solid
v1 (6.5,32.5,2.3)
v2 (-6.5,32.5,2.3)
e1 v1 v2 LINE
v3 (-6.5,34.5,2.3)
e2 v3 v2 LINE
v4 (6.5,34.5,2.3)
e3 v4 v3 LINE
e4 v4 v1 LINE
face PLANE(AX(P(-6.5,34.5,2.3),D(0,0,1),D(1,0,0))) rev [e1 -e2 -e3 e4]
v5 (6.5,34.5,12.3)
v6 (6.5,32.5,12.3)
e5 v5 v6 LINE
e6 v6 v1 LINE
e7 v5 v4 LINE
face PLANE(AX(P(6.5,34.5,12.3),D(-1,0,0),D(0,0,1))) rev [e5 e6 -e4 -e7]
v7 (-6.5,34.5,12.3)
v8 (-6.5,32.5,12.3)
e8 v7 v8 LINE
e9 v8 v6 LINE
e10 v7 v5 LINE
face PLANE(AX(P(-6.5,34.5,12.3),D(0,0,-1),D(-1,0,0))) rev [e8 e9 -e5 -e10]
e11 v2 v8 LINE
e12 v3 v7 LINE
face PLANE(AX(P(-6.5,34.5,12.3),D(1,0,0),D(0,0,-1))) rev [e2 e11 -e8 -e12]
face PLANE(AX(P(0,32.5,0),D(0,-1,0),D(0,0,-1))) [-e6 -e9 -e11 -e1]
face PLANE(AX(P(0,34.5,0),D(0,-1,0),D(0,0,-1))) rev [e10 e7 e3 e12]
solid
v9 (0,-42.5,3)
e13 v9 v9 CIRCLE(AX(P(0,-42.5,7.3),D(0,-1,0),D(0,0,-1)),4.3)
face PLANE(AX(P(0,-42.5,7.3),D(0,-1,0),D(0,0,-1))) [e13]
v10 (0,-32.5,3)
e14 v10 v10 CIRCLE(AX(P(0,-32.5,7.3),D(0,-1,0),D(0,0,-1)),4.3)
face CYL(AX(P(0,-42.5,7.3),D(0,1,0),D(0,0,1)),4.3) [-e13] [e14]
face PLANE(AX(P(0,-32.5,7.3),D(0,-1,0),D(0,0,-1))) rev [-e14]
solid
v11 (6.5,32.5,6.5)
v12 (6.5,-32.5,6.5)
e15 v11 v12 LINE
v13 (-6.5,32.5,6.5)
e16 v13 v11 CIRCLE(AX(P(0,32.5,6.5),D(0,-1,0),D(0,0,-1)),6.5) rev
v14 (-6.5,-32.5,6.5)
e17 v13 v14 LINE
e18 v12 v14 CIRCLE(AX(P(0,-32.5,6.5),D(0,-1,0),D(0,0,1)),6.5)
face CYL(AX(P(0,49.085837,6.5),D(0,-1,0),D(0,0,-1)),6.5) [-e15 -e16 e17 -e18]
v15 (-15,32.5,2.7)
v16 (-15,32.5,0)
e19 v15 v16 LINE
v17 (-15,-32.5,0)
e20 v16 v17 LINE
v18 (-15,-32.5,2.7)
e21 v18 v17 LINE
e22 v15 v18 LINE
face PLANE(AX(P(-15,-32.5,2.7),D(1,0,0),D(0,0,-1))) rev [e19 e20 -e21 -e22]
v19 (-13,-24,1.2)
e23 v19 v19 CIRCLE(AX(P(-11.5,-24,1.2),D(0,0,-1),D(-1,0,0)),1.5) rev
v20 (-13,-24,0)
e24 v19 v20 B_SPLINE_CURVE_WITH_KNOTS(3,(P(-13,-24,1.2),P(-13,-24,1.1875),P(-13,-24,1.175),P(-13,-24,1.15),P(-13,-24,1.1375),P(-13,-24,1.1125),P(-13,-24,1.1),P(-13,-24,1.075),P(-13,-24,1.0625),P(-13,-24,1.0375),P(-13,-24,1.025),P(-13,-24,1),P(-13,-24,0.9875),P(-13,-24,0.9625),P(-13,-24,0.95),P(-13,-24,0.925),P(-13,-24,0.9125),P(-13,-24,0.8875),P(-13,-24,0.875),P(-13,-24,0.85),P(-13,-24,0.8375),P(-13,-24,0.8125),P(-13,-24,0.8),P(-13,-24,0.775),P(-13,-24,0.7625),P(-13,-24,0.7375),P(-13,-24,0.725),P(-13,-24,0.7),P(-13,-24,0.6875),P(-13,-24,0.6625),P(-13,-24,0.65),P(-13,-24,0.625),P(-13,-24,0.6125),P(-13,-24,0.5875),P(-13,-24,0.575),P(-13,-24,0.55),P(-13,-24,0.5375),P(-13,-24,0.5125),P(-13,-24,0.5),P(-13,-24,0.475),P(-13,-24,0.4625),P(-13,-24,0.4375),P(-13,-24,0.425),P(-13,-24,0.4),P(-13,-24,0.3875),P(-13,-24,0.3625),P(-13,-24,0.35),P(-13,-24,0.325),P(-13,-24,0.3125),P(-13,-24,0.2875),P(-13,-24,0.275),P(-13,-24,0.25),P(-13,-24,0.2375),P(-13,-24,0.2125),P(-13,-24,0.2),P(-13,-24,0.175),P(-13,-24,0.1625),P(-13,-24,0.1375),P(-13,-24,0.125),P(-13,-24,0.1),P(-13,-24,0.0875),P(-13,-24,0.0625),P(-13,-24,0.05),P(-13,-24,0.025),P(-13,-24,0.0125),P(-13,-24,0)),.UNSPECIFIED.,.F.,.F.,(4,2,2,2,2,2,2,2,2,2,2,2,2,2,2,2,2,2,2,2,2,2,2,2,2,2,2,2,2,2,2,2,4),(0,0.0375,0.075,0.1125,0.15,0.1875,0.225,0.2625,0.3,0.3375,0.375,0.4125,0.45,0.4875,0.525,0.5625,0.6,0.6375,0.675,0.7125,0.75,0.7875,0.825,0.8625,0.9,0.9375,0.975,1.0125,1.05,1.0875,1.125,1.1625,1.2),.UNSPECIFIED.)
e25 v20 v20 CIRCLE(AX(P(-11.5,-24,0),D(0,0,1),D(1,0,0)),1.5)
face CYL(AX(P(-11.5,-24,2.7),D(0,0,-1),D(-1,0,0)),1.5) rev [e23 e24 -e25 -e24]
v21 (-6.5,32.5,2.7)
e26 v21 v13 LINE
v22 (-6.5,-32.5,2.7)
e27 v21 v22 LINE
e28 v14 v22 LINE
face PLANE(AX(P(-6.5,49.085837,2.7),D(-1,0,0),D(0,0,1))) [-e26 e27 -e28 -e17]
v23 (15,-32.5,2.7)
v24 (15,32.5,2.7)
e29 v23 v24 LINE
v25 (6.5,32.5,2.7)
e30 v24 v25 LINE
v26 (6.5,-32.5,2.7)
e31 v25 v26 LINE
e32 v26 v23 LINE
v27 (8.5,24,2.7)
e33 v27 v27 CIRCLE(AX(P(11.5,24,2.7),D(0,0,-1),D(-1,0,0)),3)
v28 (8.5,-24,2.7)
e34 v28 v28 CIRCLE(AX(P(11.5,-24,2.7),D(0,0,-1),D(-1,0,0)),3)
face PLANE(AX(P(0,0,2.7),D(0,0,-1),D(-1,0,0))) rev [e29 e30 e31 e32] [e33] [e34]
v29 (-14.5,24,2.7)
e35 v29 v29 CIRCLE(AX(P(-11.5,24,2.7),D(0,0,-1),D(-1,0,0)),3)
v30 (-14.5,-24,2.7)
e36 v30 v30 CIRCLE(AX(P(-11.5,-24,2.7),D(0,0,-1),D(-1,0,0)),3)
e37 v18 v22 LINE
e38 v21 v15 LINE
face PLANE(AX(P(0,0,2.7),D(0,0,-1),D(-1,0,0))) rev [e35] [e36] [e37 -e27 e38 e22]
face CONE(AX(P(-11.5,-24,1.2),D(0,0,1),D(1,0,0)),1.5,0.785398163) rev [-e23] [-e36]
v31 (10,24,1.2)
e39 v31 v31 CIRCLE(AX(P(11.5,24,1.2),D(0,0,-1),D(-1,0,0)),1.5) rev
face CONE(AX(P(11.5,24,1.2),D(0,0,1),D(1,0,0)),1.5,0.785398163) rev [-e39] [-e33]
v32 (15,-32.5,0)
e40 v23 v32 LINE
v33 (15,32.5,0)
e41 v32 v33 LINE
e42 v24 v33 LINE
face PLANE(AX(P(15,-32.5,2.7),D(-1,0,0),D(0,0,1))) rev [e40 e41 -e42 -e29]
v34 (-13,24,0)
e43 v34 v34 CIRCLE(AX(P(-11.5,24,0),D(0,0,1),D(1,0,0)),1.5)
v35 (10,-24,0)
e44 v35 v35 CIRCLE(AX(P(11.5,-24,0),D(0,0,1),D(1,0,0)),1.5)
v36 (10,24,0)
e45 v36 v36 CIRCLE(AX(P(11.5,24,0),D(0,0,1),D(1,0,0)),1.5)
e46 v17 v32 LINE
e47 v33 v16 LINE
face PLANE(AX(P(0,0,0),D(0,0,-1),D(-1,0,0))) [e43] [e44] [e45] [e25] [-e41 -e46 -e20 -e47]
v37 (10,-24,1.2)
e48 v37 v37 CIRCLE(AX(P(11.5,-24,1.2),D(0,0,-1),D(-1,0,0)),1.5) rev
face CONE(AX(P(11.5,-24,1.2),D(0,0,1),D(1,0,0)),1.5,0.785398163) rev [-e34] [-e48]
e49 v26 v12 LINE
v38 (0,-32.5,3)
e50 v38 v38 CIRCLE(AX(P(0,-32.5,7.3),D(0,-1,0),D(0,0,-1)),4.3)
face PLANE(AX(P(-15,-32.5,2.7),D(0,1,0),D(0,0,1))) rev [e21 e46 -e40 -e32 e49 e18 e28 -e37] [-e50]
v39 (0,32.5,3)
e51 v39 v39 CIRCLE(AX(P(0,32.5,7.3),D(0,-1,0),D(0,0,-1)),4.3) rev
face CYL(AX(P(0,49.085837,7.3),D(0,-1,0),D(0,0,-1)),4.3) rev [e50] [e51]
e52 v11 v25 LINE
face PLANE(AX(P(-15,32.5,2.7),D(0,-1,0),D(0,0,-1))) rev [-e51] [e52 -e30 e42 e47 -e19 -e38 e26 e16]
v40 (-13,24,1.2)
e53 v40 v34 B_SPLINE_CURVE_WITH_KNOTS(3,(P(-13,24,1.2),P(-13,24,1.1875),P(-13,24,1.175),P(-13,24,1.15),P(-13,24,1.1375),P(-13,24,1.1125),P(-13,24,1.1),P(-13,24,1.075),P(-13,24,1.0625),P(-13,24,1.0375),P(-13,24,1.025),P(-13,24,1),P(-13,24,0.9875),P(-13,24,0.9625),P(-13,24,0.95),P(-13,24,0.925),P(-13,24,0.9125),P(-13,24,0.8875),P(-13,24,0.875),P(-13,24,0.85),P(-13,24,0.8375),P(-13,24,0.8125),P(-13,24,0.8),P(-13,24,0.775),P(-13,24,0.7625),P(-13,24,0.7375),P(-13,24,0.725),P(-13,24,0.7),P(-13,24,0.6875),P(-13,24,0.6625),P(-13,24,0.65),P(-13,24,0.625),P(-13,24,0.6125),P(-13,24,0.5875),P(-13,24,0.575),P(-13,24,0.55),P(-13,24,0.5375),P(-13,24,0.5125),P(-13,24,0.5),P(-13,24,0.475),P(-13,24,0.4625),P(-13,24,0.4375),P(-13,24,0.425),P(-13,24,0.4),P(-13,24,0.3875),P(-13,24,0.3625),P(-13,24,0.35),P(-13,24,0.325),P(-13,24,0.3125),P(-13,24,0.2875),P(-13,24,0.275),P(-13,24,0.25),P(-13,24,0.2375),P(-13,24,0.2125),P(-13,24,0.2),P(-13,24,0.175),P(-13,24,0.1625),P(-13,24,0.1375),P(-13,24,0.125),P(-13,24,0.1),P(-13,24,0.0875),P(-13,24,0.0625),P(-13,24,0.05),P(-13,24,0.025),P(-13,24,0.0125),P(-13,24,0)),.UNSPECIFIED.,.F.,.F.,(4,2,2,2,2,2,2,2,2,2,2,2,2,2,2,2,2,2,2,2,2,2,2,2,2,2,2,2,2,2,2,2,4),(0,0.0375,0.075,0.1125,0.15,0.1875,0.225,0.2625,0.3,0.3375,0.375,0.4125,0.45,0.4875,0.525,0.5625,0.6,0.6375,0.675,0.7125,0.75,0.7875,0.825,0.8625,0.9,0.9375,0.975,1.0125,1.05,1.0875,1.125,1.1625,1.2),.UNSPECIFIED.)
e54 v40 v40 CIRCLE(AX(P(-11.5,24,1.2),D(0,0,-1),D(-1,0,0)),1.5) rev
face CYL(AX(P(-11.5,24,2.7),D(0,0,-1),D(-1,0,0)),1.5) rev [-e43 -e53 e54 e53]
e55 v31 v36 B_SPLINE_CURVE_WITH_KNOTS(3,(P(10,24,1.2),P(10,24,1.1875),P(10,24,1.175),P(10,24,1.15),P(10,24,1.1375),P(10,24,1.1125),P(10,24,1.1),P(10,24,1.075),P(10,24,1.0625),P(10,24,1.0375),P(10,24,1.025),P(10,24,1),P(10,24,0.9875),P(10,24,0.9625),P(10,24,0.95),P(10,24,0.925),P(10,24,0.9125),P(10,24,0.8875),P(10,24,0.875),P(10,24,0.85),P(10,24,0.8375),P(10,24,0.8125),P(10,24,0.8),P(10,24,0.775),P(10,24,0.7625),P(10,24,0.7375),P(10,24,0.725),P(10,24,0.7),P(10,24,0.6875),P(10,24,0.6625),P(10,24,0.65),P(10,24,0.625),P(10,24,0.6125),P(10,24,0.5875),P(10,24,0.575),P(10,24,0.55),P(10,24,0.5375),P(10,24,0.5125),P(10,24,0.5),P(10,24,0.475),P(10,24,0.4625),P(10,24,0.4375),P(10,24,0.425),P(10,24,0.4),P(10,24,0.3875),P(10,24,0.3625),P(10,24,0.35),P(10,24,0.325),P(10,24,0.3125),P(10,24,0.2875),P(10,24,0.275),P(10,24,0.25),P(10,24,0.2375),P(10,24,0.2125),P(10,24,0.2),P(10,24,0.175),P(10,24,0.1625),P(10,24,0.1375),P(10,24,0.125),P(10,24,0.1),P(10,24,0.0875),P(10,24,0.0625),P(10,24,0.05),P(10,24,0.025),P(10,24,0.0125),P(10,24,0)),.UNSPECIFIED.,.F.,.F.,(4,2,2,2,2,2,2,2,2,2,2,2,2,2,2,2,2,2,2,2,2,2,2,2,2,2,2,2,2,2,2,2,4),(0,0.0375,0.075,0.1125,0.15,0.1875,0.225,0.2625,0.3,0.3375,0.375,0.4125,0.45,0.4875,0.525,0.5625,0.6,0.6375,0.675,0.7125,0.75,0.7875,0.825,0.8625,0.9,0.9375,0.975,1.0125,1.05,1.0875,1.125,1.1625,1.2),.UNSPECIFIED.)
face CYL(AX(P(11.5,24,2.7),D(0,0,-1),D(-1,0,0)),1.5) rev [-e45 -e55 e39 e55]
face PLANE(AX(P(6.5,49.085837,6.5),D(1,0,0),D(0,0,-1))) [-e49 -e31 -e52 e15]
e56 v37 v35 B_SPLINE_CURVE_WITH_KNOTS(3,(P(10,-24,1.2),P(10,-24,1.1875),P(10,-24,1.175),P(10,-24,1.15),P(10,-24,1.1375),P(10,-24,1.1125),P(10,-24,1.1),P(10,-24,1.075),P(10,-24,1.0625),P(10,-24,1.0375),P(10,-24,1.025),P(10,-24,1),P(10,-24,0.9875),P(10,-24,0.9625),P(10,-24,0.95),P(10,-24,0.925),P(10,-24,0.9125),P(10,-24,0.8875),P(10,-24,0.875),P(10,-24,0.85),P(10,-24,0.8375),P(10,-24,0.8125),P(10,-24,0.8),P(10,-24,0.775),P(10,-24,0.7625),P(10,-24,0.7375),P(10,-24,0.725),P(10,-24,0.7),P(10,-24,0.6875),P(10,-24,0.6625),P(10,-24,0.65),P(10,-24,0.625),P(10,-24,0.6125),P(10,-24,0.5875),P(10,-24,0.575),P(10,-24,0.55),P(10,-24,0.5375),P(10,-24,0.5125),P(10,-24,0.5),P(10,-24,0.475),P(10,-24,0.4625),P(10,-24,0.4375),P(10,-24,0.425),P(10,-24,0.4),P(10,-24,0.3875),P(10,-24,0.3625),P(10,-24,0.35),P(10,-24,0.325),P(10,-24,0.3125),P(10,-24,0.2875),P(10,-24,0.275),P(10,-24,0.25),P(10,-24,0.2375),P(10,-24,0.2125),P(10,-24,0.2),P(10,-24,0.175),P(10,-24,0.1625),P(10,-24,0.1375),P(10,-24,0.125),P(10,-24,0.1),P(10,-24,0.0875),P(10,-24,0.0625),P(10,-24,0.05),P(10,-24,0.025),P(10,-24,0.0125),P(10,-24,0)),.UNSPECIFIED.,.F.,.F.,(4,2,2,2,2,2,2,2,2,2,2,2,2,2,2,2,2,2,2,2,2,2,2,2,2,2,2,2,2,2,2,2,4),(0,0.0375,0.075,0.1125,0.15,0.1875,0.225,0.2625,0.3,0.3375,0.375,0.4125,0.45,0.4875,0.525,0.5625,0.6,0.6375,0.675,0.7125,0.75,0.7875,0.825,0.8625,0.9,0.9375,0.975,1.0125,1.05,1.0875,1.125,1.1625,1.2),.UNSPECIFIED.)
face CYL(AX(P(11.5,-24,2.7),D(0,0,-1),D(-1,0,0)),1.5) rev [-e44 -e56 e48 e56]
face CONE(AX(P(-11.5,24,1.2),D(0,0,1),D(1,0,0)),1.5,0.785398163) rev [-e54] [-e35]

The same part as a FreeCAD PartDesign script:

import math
import FreeCAD as App
import Part
import Sketcher


def edges_at(feature, points):
    """Names of the edges that pass closest to the given points."""
    edges = feature.Shape.Edges
    near = lambda p: min(range(len(edges)), key=lambda i: edges[i].distToShape(Part.Vertex(*p))[0])
    return sorted({f"Edge{near(p) + 1}" for p in points})


def add_polygon(sketch, points):
    """Adds a closed chain of lines whose ends are joined by coincident constraints."""
    first, n = sketch.GeometryCount, len(points)
    for a, b in zip(points, points[1:] + points[:1]):
        sketch.addGeometry(Part.LineSegment(App.Vector(*a, 0), App.Vector(*b, 0)), False)
    for i in range(n):
        sketch.addConstraint(Sketcher.Constraint("Coincident", first + i, 2, first + (i + 1) % n, 1))

doc = App.newDocument("Part")
params = doc.addObject("Spreadsheet::Sheet", "Params")
for row, (alias, value) in enumerate([
    ("sketch1_diameter", "3 mm"),
    ("sketch1_width", "30 mm"),
    ("sketch1_height", "65 mm"),
    ("pad1_length", "2.7 mm"),
    ("sketch2_diameter", "8.6 mm"),
    ("sketch2_radius", "6.5 mm"),
    ("sketch2_height", "3.8 mm"),
    ("pad2_length", "65 mm"),
    ("chamfer_size", "1.5 mm"),
    ("sketch3_diameter", "8.6 mm"),
    ("pad3_length", "10 mm"),
    ("sketch4_width", "13 mm"),
    ("sketch4_height", "10 mm"),
    ("pad4_length", "2 mm"),
], start=1):
    params.set(f"A{row}", alias)
    params.set(f"B{row}", "=" + value)
    params.setAlias(f"B{row}", alias)

body = doc.addObject("PartDesign::Body", "Body")

# Sketch on XY plane
sketch1 = body.newObject("Sketcher::SketchObject", "Sketch")
sketch1.AttachmentSupport = (doc.getObject("XY_Plane"), [""])
sketch1.MapMode = "FlatFace"
add_polygon(sketch1, [(-15, 32.5), (-15, -32.5), (15, -32.5), (15, 32.5)])  # lines 0-3
sketch1.addGeometry(Part.Circle(App.Vector(-11.5, -24, 0), App.Vector(0, 0, 1), 1.5), False)  # 4
sketch1.addGeometry(Part.Circle(App.Vector(11.5, -24, 0), App.Vector(0, 0, 1), 1.5), False)  # 5
sketch1.addGeometry(Part.Circle(App.Vector(-11.5, 24, 0), App.Vector(0, 0, 1), 1.5), False)  # 6
sketch1.addGeometry(Part.Circle(App.Vector(11.5, 24, 0), App.Vector(0, 0, 1), 1.5), False)  # 7
sketch1.addConstraint([
    Sketcher.Constraint("Vertical", 0),
    Sketcher.Constraint("Horizontal", 1),
    Sketcher.Constraint("Vertical", 2),
    Sketcher.Constraint("Horizontal", 3),
    Sketcher.Constraint("Equal", 4, 5),
    Sketcher.Constraint("Equal", 5, 6),
    Sketcher.Constraint("Equal", 6, 7),
    Sketcher.Constraint("Symmetric", 5, 3, 6, 3, -1, 1),
    Sketcher.Constraint("Symmetric", 4, 3, 7, 3, -1, 1),
    Sketcher.Constraint("Symmetric", 0, 2, 2, 2, -1, 1),
    Sketcher.Constraint("Symmetric", 4, 3, 5, 3, -2),
    Sketcher.Constraint("Diameter", 4, 3.0),
    Sketcher.Constraint("DistanceX", 1, 1, 1, 2, 30.0),
    Sketcher.Constraint("DistanceY", 0, 2, 0, 1, 65.0),
    Sketcher.Constraint("DistanceY", 4, 3, -1, 1, 24.0),
    Sketcher.Constraint("DistanceX", 4, 3, 5, 3, 23.0),
])
sketch1.setExpression("Constraints[15]", "Params.sketch1_diameter")
sketch1.setExpression("Constraints[16]", "Params.sketch1_width")
sketch1.setExpression("Constraints[17]", "Params.sketch1_height")
pad1 = body.newObject("PartDesign::Pad", "Pad")
pad1.Profile = sketch1
pad1.setExpression("Length", "Params.pad1_length")

# Sketch on XZ plane
sketch2 = body.newObject("Sketcher::SketchObject", "Sketch001")
sketch2.AttachmentSupport = (doc.getObject("XZ_Plane"), [""])
sketch2.MapMode = "FlatFace"
sketch2.AttachmentOffset = App.Placement(App.Vector(0, 0, 32.5), App.Rotation())
sketch2.addGeometry([
    Part.LineSegment(App.Vector(-6.5, 6.5, 0), App.Vector(-6.5, 2.7, 0)),  # 0
    Part.LineSegment(App.Vector(-6.5, 2.7, 0), App.Vector(6.5, 2.7, 0)),  # 1
    Part.LineSegment(App.Vector(6.5, 2.7, 0), App.Vector(6.5, 6.5, 0)),  # 2
    Part.ArcOfCircle(Part.Circle(App.Vector(0, 6.5, 0), App.Vector(0, 0, 1), 6.5), math.radians(0), math.radians(180)),  # 3
    Part.Circle(App.Vector(0, 7.3, 0), App.Vector(0, 0, 1), 4.3),  # 4
], False)
sketch2.addConstraint([
    Sketcher.Constraint("Coincident", 0, 2, 1, 1),
    Sketcher.Constraint("Coincident", 1, 2, 2, 1),
    Sketcher.Constraint("Tangent", 2, 2, 3, 1),
    Sketcher.Constraint("Tangent", 3, 2, 0, 1),
    Sketcher.Constraint("Vertical", 0),
    Sketcher.Constraint("Horizontal", 1),
    Sketcher.Constraint("Vertical", 2),
    Sketcher.Constraint("PointOnObject", 3, 3, -2),
    Sketcher.Constraint("PointOnObject", 4, 3, -2),
    Sketcher.Constraint("Diameter", 4, 8.6),
    Sketcher.Constraint("Radius", 3, 6.5),
    Sketcher.Constraint("DistanceY", 0, 2, 0, 1, 3.8),
    Sketcher.Constraint("DistanceY", -1, 1, 3, 3, 6.5),
    Sketcher.Constraint("DistanceY", -1, 1, 4, 3, 7.3),
])
sketch2.setExpression("Constraints[9]", "Params.sketch2_diameter")
sketch2.setExpression("Constraints[10]", "Params.sketch2_radius")
sketch2.setExpression("Constraints[11]", "Params.sketch2_height")
pad2 = body.newObject("PartDesign::Pad", "Pad001")
pad2.Profile = sketch2
pad2.setExpression("Length", "Params.pad2_length")
pad2.Reversed = True
doc.recompute()

chamfer = body.newObject("PartDesign::Chamfer", "Chamfer")
chamfer.Base = (pad2, edges_at(pad2, [
    (-10, 24, 2.7),
    (13, 24, 2.7),
    (13, -24, 2.7),
    (-10, -24, 2.7),
]))
chamfer.setExpression("Size", "Params.chamfer_size")
body2 = doc.addObject("PartDesign::Body", "Body001")

# Sketch on XZ plane
sketch3 = body2.newObject("Sketcher::SketchObject", "Sketch002")
sketch3.AttachmentSupport = (doc.getObject("XZ_Plane001"), [""])
sketch3.MapMode = "FlatFace"
sketch3.AttachmentOffset = App.Placement(App.Vector(0, 0, 32.5), App.Rotation())
sketch3.addGeometry(Part.Circle(App.Vector(0, 7.3, 0), App.Vector(0, 0, 1), 4.3), False)
sketch3.addConstraint([
    Sketcher.Constraint("PointOnObject", 0, 3, -2),
    Sketcher.Constraint("Diameter", 0, 8.6),
    Sketcher.Constraint("DistanceY", -1, 1, 0, 3, 7.3),
])
sketch3.setExpression("Constraints[1]", "Params.sketch3_diameter")
pad3 = body2.newObject("PartDesign::Pad", "Pad002")
pad3.Profile = sketch3
pad3.setExpression("Length", "Params.pad3_length")
body3 = doc.addObject("PartDesign::Body", "Body002")

# Sketch on XZ plane
sketch4 = body3.newObject("Sketcher::SketchObject", "Sketch003")
sketch4.AttachmentSupport = (doc.getObject("XZ_Plane002"), [""])
sketch4.MapMode = "FlatFace"
sketch4.AttachmentOffset = App.Placement(App.Vector(0, 0, -32.5), App.Rotation())
add_polygon(sketch4, [(-6.5, 2.3), (-6.5, 12.3), (6.5, 12.3), (6.5, 2.3)])  # lines 0-3
sketch4.addConstraint([
    Sketcher.Constraint("Vertical", 0),
    Sketcher.Constraint("Horizontal", 1),
    Sketcher.Constraint("Vertical", 2),
    Sketcher.Constraint("Horizontal", 3),
    Sketcher.Constraint("DistanceX", 1, 1, 1, 2, 13.0),
    Sketcher.Constraint("DistanceY", 0, 1, 0, 2, 10.0),
    Sketcher.Constraint("DistanceX", 0, 2, -1, 1, 6.5),
    Sketcher.Constraint("DistanceY", -1, 1, 0, 2, 12.3),
])
sketch4.setExpression("Constraints[8]", "Params.sketch4_width")
sketch4.setExpression("Constraints[9]", "Params.sketch4_height")
pad4 = body3.newObject("PartDesign::Pad", "Pad003")
pad4.Profile = sketch4
pad4.setExpression("Length", "Params.pad4_length")
pad4.Reversed = True

doc.recompute()
